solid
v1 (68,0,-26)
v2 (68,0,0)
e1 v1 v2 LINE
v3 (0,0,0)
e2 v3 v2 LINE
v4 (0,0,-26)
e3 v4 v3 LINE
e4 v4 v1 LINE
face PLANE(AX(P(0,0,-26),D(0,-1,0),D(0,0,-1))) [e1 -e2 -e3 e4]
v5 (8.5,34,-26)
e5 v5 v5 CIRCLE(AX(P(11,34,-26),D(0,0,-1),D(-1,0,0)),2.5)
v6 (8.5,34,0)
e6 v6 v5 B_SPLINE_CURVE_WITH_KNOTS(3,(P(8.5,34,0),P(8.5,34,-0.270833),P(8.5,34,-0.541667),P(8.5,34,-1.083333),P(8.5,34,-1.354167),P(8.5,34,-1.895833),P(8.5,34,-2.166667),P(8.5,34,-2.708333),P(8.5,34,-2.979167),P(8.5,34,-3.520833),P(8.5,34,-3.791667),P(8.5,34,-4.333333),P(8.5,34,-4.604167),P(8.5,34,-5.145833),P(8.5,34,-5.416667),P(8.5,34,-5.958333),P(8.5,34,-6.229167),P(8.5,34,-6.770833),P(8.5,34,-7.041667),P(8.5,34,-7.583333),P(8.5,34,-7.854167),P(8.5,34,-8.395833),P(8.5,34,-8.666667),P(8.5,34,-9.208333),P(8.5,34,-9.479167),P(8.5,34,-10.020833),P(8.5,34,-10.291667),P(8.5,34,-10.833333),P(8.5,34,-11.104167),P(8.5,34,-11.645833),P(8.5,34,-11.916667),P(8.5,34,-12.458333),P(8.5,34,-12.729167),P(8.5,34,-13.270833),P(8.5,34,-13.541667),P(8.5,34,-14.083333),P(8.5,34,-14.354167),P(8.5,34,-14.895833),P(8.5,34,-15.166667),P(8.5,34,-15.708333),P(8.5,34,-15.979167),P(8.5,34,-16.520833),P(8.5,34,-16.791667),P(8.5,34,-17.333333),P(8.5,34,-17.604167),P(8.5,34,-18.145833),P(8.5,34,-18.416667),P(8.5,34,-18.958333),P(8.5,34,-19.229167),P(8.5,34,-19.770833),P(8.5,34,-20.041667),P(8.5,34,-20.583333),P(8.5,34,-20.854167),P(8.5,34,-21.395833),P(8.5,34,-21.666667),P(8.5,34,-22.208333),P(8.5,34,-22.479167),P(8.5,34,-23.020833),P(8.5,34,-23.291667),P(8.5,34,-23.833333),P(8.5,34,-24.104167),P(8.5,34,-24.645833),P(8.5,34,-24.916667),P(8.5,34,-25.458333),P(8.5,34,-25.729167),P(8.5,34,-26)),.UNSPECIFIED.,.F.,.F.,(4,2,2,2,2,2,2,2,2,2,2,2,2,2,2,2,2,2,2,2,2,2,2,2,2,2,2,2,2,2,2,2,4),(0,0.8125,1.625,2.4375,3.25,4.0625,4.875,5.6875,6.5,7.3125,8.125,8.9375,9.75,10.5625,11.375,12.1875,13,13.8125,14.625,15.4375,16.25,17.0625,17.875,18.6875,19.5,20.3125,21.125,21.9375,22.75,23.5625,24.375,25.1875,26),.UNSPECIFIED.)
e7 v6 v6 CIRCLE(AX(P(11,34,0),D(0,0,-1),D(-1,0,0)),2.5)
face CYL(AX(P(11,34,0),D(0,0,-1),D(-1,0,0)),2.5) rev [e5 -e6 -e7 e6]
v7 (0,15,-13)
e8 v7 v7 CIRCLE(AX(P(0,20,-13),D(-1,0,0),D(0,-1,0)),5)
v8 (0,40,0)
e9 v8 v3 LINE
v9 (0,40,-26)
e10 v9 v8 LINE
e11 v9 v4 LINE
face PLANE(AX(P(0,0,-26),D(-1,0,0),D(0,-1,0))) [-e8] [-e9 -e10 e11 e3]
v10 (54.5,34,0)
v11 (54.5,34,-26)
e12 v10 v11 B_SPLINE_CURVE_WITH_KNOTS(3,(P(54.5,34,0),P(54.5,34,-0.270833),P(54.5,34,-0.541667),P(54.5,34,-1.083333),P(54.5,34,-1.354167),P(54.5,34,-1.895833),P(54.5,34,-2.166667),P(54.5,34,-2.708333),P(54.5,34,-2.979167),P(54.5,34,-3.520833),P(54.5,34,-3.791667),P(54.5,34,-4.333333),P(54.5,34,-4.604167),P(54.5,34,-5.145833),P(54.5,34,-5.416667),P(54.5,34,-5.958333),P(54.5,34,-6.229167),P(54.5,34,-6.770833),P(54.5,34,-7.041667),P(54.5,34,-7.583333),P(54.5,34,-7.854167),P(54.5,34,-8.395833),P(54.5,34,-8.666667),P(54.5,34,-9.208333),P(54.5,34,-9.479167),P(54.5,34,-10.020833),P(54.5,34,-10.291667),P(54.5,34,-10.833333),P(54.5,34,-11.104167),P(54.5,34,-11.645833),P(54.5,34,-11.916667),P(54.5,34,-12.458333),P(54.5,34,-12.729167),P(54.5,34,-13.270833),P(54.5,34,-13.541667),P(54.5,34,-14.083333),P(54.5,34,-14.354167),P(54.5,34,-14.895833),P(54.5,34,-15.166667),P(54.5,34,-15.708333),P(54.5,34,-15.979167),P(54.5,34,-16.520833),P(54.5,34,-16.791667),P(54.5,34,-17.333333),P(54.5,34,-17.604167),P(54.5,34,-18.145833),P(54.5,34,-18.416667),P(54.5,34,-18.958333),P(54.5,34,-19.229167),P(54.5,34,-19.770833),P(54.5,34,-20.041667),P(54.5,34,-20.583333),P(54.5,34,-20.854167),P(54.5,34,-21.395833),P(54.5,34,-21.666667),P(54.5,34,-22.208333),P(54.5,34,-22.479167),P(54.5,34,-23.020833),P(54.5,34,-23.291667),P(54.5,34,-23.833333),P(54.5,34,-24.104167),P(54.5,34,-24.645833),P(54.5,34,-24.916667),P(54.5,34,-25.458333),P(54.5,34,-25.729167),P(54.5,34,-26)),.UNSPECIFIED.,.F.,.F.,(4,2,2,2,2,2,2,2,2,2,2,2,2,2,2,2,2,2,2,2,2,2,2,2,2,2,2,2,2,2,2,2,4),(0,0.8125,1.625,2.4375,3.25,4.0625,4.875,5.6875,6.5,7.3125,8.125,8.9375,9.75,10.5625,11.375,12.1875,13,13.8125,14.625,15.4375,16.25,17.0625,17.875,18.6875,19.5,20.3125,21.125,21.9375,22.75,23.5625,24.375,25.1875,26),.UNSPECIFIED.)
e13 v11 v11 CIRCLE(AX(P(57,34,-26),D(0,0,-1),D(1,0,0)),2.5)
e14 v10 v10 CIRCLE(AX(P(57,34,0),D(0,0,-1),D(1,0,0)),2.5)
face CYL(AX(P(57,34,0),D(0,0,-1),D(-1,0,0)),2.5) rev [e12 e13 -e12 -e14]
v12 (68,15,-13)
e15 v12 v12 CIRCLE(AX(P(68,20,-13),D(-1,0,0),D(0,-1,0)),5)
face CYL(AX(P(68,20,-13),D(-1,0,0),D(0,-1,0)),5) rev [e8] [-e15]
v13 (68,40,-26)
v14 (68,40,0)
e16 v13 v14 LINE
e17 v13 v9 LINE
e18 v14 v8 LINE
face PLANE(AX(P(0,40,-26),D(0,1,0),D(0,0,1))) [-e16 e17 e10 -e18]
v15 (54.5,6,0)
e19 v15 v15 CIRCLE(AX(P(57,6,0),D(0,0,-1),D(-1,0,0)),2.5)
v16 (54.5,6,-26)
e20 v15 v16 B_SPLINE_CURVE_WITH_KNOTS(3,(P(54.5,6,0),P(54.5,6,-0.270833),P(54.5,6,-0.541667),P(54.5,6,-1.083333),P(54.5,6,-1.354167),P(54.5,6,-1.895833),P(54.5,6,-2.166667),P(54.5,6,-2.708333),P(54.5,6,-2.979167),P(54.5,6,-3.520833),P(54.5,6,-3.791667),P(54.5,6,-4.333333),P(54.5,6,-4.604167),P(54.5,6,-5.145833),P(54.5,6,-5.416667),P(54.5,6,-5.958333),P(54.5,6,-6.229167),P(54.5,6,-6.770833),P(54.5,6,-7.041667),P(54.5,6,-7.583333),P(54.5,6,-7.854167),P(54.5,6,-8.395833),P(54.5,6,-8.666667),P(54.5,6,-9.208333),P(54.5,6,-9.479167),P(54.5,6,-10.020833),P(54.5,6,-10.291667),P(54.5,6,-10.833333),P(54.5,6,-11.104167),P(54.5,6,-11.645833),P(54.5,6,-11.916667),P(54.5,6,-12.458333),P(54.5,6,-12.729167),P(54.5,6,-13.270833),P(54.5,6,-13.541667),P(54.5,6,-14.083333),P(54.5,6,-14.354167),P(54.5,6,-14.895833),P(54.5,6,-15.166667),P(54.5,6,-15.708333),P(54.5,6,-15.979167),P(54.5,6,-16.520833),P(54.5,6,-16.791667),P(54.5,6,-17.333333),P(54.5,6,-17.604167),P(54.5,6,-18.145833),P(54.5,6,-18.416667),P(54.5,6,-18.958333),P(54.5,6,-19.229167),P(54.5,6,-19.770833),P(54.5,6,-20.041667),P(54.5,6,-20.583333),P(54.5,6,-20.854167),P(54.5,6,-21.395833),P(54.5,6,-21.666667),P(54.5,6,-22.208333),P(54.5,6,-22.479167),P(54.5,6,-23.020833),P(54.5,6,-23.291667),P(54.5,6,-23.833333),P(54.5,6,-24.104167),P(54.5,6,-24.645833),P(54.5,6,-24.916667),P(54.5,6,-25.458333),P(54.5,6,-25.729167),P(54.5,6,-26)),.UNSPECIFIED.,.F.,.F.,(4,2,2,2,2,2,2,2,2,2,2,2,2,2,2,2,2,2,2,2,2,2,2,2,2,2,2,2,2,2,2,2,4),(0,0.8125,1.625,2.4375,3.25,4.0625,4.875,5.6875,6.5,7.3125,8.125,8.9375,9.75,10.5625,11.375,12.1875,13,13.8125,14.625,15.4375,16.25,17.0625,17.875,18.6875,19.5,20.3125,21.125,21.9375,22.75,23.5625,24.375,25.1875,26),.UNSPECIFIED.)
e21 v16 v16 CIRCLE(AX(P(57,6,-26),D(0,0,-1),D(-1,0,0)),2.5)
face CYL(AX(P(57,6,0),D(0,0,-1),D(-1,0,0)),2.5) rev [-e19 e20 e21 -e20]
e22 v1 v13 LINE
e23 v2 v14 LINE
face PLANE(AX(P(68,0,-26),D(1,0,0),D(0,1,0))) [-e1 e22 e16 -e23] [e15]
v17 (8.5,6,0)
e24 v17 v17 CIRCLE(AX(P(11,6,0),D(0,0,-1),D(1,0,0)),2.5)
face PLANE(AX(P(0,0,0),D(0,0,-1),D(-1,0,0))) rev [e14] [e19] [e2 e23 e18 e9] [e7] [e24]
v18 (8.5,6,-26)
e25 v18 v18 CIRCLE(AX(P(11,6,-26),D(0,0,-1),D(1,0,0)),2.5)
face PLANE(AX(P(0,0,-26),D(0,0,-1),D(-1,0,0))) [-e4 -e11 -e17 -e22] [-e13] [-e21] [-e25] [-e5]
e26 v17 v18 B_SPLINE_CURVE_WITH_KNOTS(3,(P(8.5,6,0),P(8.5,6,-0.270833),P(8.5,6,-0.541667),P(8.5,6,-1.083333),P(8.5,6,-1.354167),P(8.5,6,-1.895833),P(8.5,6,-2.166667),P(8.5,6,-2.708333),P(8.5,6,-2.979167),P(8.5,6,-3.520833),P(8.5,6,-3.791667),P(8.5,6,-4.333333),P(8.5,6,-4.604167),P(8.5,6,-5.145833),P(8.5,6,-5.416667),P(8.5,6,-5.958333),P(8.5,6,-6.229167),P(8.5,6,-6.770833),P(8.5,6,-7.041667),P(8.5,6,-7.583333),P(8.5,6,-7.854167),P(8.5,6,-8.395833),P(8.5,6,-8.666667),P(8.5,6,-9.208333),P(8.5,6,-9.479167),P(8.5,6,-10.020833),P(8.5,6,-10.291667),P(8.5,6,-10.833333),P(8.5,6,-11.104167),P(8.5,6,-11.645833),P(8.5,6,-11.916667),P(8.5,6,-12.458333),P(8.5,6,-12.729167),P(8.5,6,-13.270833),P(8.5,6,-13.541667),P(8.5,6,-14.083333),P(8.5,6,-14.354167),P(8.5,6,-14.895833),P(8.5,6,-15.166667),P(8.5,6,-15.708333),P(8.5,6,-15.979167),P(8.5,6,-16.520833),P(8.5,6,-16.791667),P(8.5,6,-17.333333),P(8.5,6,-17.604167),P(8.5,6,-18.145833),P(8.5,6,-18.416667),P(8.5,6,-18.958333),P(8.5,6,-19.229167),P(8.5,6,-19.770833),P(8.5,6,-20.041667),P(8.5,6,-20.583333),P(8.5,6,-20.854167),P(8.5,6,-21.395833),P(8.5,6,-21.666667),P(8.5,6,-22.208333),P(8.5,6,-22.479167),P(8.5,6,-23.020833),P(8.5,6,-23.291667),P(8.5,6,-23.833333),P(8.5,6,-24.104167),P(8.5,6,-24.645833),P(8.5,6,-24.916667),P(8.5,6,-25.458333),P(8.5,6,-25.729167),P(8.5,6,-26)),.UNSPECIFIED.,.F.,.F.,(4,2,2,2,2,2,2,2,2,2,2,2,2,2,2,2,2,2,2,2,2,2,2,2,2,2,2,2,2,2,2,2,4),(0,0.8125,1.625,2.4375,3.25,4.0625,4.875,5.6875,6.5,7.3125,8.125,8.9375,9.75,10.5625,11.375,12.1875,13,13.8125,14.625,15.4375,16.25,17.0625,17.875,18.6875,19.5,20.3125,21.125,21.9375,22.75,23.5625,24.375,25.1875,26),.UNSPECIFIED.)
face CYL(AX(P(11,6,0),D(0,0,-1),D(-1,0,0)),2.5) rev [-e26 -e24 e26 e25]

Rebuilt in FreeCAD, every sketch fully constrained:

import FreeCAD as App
import Part
import Sketcher

V = App.Vector
Q = App.Units.Quantity

doc = App.newDocument("Part")
body = doc.addObject("PartDesign::Body", "Body")

# Sketch on XY plane
sketch1 = doc.addObject("Sketcher::SketchObject", "Sketch")
body.addObject(sketch1)
sketch1.AttachmentSupport = (doc.XY_Plane, [""])
sketch1.MapMode = "FlatFace"
sketch1.addGeometry([
    Part.LineSegment(V(0, 40, 0), V(0, 0, 0)),
    Part.LineSegment(V(0, 0, 0), V(68, 0, 0)),
    Part.LineSegment(V(68, 0, 0), V(68, 40, 0)),
    Part.LineSegment(V(68, 40, 0), V(0, 40, 0)),
], False)
sketch1.addConstraint([
    Sketcher.Constraint("Coincident", 0, 2, 1, 1),
    Sketcher.Constraint("Coincident", 1, 2, 2, 1),
    Sketcher.Constraint("Coincident", 2, 2, 3, 1),
    Sketcher.Constraint("Coincident", 3, 2, 0, 1),
    Sketcher.Constraint("Vertical", 0),
    Sketcher.Constraint("Horizontal", 1),
    Sketcher.Constraint("Vertical", 2),
    Sketcher.Constraint("Horizontal", 3),
    Sketcher.Constraint("Coincident", 0, 2, -1, 1),
    Sketcher.Constraint("DistanceX", 1, 1, 1, 2, Q("68 mm")),
    Sketcher.Constraint("DistanceY", 0, 2, 0, 1, Q("40 mm")),
])
pad1 = doc.addObject("PartDesign::Pad", "Pad")
body.addObject(pad1)
pad1.Profile = sketch1
pad1.Length = 26
pad1.Reversed = True

# Sketch on YZ plane
sketch2 = doc.addObject("Sketcher::SketchObject", "Sketch001")
body.addObject(sketch2)
sketch2.AttachmentSupport = (doc.YZ_Plane, [""])
sketch2.MapMode = "FlatFace"
sketch2.addGeometry(Part.Circle(V(20, -13, 0), V(0, 0, 1), 5), False)
sketch2.addConstraint([
    Sketcher.Constraint("Diameter", 0, Q("10 mm")),
    Sketcher.Constraint("DistanceX", -1, 1, 0, 3, Q("20 mm")),
    Sketcher.Constraint("DistanceY", 0, 3, -1, 1, Q("13 mm")),
])
pocket1 = doc.addObject("PartDesign::Pocket", "Pocket")
body.addObject(pocket1)
pocket1.Profile = sketch2
pocket1.Type = "ThroughAll"
pocket1.Reversed = True

# Sketch on XY plane
sketch3 = doc.addObject("Sketcher::SketchObject", "Sketch002")
body.addObject(sketch3)
sketch3.AttachmentSupport = (doc.XY_Plane, [""])
sketch3.MapMode = "FlatFace"
sketch3.AttachmentOffset = App.Placement(V(0, 0, -26), App.Rotation())
sketch3.addGeometry([
    Part.Circle(V(11, 34, 0), V(0, 0, 1), 2.5),
    Part.Circle(V(57, 34, 0), V(0, 0, 1), 2.5),
    Part.Circle(V(57, 6, 0), V(0, 0, 1), 2.5),
    Part.Circle(V(11, 6, 0), V(0, 0, 1), 2.5),
], False)
sketch3.addConstraint([
    Sketcher.Constraint("Equal", 0, 1),
    Sketcher.Constraint("Equal", 1, 2),
    Sketcher.Constraint("Equal", 2, 3),
    Sketcher.Constraint("Horizontal", 0, 3, 1, 3),
    Sketcher.Constraint("Horizontal", 2, 3, 3, 3),
    Sketcher.Constraint("Vertical", 1, 3, 2, 3),
    Sketcher.Constraint("Vertical", 0, 3, 3, 3),
    Sketcher.Constraint("Diameter", 0, Q("5 mm")),
    Sketcher.Constraint("DistanceX", -1, 1, 0, 3, Q("11 mm")),
    Sketcher.Constraint("DistanceY", -1, 1, 0, 3, Q("34 mm")),
    Sketcher.Constraint("DistanceX", -1, 1, 1, 3, Q("57 mm")),
    Sketcher.Constraint("DistanceY", -1, 1, 2, 3, Q("6 mm")),
])
pocket2 = doc.addObject("PartDesign::Pocket", "Pocket001")
body.addObject(pocket2)
pocket2.Profile = sketch3
pocket2.Type = "ThroughAll"
pocket2.Reversed = True

doc.recompute()
